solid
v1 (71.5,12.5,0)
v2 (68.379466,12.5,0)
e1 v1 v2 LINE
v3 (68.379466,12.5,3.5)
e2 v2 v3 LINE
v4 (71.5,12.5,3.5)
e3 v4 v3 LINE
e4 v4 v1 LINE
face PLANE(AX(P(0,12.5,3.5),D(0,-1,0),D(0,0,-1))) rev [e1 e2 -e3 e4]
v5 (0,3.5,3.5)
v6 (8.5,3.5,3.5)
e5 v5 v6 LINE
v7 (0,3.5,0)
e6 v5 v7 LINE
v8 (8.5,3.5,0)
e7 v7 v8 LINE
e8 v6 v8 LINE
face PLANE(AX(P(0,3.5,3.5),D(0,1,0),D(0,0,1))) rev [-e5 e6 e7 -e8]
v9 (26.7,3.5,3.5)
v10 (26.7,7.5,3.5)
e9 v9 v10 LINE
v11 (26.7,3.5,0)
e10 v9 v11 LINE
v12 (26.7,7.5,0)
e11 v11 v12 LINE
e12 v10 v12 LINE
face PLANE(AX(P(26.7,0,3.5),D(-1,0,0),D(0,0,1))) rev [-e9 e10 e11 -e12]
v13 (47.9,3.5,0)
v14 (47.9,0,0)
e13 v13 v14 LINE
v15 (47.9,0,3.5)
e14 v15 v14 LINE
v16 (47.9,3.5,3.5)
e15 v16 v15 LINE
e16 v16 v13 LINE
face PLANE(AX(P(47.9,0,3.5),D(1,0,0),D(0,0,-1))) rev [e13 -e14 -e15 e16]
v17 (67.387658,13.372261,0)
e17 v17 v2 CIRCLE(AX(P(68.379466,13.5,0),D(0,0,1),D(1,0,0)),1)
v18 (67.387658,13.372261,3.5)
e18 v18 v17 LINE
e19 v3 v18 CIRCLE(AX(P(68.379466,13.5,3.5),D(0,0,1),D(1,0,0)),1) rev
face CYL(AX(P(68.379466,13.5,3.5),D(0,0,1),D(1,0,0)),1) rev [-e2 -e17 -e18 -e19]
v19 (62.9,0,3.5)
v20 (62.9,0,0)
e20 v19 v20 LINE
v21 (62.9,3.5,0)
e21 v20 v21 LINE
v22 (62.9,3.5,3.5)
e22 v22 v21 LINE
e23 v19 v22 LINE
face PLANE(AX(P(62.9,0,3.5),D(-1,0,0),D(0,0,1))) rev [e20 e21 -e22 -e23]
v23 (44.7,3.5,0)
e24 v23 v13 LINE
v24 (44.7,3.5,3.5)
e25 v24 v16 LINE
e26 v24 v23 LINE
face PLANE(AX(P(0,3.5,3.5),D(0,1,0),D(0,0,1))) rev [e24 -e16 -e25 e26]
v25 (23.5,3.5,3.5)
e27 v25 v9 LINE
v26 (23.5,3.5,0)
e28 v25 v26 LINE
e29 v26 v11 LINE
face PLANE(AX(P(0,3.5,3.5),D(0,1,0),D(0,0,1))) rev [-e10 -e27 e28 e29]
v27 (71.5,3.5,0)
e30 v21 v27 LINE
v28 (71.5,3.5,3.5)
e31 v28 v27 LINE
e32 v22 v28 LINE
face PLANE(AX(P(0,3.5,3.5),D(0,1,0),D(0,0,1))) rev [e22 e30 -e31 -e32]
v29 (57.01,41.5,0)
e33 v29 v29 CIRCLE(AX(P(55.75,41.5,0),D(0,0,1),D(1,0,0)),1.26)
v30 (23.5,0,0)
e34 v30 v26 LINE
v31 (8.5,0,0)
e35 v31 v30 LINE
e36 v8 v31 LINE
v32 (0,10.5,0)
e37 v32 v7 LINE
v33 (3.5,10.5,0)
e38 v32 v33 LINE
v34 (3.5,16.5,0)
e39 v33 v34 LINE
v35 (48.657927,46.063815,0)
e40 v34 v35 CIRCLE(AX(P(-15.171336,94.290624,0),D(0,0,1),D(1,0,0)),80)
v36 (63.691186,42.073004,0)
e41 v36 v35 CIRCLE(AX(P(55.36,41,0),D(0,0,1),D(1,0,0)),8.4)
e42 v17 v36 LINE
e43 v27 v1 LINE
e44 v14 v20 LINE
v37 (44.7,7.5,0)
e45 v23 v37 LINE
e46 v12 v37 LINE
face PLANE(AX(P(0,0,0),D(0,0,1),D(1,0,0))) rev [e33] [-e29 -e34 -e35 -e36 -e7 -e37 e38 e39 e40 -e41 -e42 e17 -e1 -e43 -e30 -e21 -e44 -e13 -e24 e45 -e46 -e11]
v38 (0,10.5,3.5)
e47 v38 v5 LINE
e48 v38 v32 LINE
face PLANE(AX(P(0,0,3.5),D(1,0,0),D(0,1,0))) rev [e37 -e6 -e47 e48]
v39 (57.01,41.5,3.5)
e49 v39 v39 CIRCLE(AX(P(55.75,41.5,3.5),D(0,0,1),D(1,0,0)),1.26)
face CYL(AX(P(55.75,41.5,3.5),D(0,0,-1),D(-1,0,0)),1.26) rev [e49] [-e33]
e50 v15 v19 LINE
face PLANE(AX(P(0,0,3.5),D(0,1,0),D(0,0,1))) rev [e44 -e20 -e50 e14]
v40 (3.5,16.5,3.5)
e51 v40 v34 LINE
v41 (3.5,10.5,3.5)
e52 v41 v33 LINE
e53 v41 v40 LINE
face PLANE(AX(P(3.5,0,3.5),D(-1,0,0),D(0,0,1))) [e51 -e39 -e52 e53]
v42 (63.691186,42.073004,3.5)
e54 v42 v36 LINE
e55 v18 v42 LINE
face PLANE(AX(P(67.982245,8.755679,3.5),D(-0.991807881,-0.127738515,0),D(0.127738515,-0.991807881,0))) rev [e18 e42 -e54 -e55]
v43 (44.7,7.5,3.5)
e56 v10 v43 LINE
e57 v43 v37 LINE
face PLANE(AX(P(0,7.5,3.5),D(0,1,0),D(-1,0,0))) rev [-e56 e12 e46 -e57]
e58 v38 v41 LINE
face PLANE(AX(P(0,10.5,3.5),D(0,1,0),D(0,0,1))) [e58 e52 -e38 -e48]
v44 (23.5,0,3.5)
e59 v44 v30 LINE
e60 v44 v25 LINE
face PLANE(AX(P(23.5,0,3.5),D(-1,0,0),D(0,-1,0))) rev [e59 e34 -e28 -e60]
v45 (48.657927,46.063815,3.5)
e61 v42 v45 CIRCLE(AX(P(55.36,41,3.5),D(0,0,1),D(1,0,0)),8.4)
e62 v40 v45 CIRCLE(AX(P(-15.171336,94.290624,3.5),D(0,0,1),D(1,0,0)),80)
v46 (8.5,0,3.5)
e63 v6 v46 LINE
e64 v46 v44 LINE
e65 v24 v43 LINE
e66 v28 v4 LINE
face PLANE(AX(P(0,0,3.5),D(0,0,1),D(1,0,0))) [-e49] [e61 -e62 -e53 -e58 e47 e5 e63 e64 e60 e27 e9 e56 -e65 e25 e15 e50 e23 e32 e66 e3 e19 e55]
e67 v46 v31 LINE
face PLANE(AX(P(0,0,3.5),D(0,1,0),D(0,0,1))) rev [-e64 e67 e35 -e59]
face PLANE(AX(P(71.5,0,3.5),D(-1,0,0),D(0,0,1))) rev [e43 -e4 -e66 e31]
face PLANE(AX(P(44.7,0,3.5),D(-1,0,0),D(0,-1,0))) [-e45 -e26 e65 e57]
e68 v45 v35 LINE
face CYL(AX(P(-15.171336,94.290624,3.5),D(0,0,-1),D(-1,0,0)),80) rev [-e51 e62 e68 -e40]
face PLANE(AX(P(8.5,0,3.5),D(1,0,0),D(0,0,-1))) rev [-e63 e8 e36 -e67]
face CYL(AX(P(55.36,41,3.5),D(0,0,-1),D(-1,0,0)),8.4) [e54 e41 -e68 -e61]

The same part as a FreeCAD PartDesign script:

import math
import FreeCAD as App
import Part
import Sketcher
Q = App.Units.Quantity


def edges_at(feature, points):
    """Names of the edges that pass closest to the given points."""
    edges = feature.Shape.Edges
    near = lambda p: min(range(len(edges)), key=lambda i: edges[i].distToShape(Part.Vertex(*p))[0])
    return sorted({f"Edge{near(p) + 1}" for p in points})

doc = App.newDocument("Part")
params = doc.addObject("Spreadsheet::Sheet", "Params")
for row, (alias, value) in enumerate([
    ("sketch1_radius", "80 mm"),
    ("sketch1_radius2", "8.4 mm"),
    ("sketch1_diameter", "2.52 mm"),
    ("sketch1_width", "15 mm"),
    ("sketch1_width2", "18 mm"),
    ("pad1_length", "3.5 mm"),
    ("fillet_radius", "1 mm"),
], start=1):
    params.set(f"A{row}", alias)
    params.set(f"B{row}", "=" + value)
    params.setAlias(f"B{row}", alias)

body = doc.addObject("PartDesign::Body", "Body")

# Sketch on XY plane
sketch1 = body.newObject("Sketcher::SketchObject", "Sketch")
sketch1.AttachmentSupport = (doc.getObject("XY_Plane"), [""])
sketch1.MapMode = "FlatFace"
sketch1.addGeometry([
    Part.LineSegment(App.Vector(3.5, 10.5, 0), App.Vector(0, 10.5, 0)),  # 0
    Part.LineSegment(App.Vector(0, 10.5, 0), App.Vector(0, 3.5, 0)),  # 1
    Part.LineSegment(App.Vector(0, 3.5, 0), App.Vector(8.5, 3.5, 0)),  # 2
    Part.LineSegment(App.Vector(8.5, 3.5, 0), App.Vector(8.5, 0, 0)),  # 3
    Part.LineSegment(App.Vector(8.5, 0, 0), App.Vector(23.5, 0, 0)),  # 4
    Part.LineSegment(App.Vector(23.5, 0, 0), App.Vector(23.5, 3.5, 0)),  # 5
    Part.LineSegment(App.Vector(23.5, 3.5, 0), App.Vector(26.7, 3.5, 0)),  # 6
    Part.LineSegment(App.Vector(26.7, 3.5, 0), App.Vector(26.7, 7.5, 0)),  # 7
    Part.LineSegment(App.Vector(26.7, 7.5, 0), App.Vector(44.7, 7.5, 0)),  # 8
    Part.LineSegment(App.Vector(44.7, 7.5, 0), App.Vector(44.7, 3.5, 0)),  # 9
    Part.LineSegment(App.Vector(44.7, 3.5, 0), App.Vector(47.9, 3.5, 0)),  # 10
    Part.LineSegment(App.Vector(47.9, 3.5, 0), App.Vector(47.9, 0, 0)),  # 11
    Part.LineSegment(App.Vector(47.9, 0, 0), App.Vector(62.9, 0, 0)),  # 12
    Part.LineSegment(App.Vector(62.9, 0, 0), App.Vector(62.9, 3.5, 0)),  # 13
    Part.LineSegment(App.Vector(62.9, 3.5, 0), App.Vector(71.5, 3.5, 0)),  # 14
    Part.LineSegment(App.Vector(71.5, 3.5, 0), App.Vector(71.5, 12.5, 0)),  # 15
    Part.LineSegment(App.Vector(71.5, 12.5, 0), App.Vector(67.5, 12.5, 0)),  # 16
    Part.LineSegment(App.Vector(67.5, 12.5, 0), App.Vector(63.691186, 42.073004, 0)),  # 17
    Part.ArcOfCircle(Part.Circle(App.Vector(55.36, 41, 0), App.Vector(0, 0, 1), 8.4), math.radians(7.338929), math.radians(142.926781)),  # 18
    Part.ArcOfCircle(Part.Circle(App.Vector(-15.171336, 94.290624, 0), App.Vector(0, 0, 1), 80), math.radians(-50.513848), math.radians(-37.073219)),  # 19
    Part.ArcOfCircle(Part.Circle(App.Vector(-15.171336, 94.290624, 0), App.Vector(0, 0, 1), 80), math.radians(-76.503162), math.radians(-50.513848)),  # 20
    Part.LineSegment(App.Vector(3.5, 16.5, 0), App.Vector(3.5, 10.5, 0)),  # 21
    Part.Circle(App.Vector(55.75, 41.5, 0), App.Vector(0, 0, 1), 1.26),  # 22
], False)
sketch1.addConstraint([
    Sketcher.Constraint("Coincident", 0, 2, 1, 1),
    Sketcher.Constraint("Coincident", 1, 2, 2, 1),
    Sketcher.Constraint("Coincident", 2, 2, 3, 1),
    Sketcher.Constraint("Coincident", 3, 2, 4, 1),
    Sketcher.Constraint("Coincident", 4, 2, 5, 1),
    Sketcher.Constraint("Coincident", 5, 2, 6, 1),
    Sketcher.Constraint("Coincident", 6, 2, 7, 1),
    Sketcher.Constraint("Coincident", 7, 2, 8, 1),
    Sketcher.Constraint("Coincident", 8, 2, 9, 1),
    Sketcher.Constraint("Coincident", 9, 2, 10, 1),
    Sketcher.Constraint("Coincident", 10, 2, 11, 1),
    Sketcher.Constraint("Coincident", 11, 2, 12, 1),
    Sketcher.Constraint("Coincident", 12, 2, 13, 1),
    Sketcher.Constraint("Coincident", 13, 2, 14, 1),
    Sketcher.Constraint("Coincident", 14, 2, 15, 1),
    Sketcher.Constraint("Coincident", 15, 2, 16, 1),
    Sketcher.Constraint("Coincident", 16, 2, 17, 1),
    Sketcher.Constraint("Tangent", 17, 2, 18, 1),
    Sketcher.Constraint("Tangent", 18, 2, 19, 2),
    Sketcher.Constraint("Tangent", 19, 1, 20, 2),
    Sketcher.Constraint("Coincident", 20, 1, 21, 1),
    Sketcher.Constraint("Coincident", 21, 2, 0, 1),
    Sketcher.Constraint("Horizontal", 0),
    Sketcher.Constraint("Vertical", 1),
    Sketcher.Constraint("Horizontal", 2),
    Sketcher.Constraint("Vertical", 3),
    Sketcher.Constraint("Horizontal", 4),
    Sketcher.Constraint("Vertical", 5),
    Sketcher.Constraint("Horizontal", 6),
    Sketcher.Constraint("Vertical", 7),
    Sketcher.Constraint("Horizontal", 8),
    Sketcher.Constraint("Vertical", 9),
    Sketcher.Constraint("Horizontal", 10),
    Sketcher.Constraint("Vertical", 11),
    Sketcher.Constraint("Horizontal", 12),
    Sketcher.Constraint("Vertical", 13),
    Sketcher.Constraint("Horizontal", 14),
    Sketcher.Constraint("Vertical", 15),
    Sketcher.Constraint("Horizontal", 16),
    Sketcher.Constraint("Vertical", 21),
    Sketcher.Constraint("Equal", 19, 20),
    Sketcher.Constraint("PointOnObject", 0, 2, -2),
    Sketcher.Constraint("PointOnObject", 3, 2, -1),
    Sketcher.Constraint("PointOnObject", 11, 2, -1),
    Sketcher.Constraint("Horizontal", 2, 2, 5, 2),
    Sketcher.Constraint("Horizontal", 6, 2, 9, 2),
    Sketcher.Constraint("Horizontal", 10, 2, 13, 2),
    Sketcher.Constraint("Equal", 6, 10),
    Sketcher.Constraint("Equal", 4, 12),
    Sketcher.Constraint("Equal", 0, 3),
    Sketcher.Constraint("Equal", 16, 7),
    Sketcher.Constraint("Radius", 19, Q("80 mm")),
    Sketcher.Constraint("Radius", 18, Q("8.4 mm")),
    Sketcher.Constraint("Diameter", 22, Q("2.52 mm")),
    Sketcher.Constraint("DistanceX", 4, 1, 4, 2, Q("15 mm")),
    Sketcher.Constraint("DistanceX", 8, 1, 8, 2, Q("18 mm")),
    Sketcher.Constraint("DistanceX", 16, 2, 16, 1, Q("4 mm")),
    Sketcher.Constraint("DistanceY", 1, 2, 1, 1, Q("7 mm")),
    Sketcher.Constraint("DistanceY", 15, 1, 15, 2, Q("9 mm")),
    Sketcher.Constraint("DistanceY", 21, 2, 21, 1, Q("6 mm")),
    Sketcher.Constraint("DistanceX", 0, 2, 0, 1, Q("3.5 mm")),
    Sketcher.Constraint("DistanceX", 2, 1, 2, 2, Q("8.5 mm")),
    Sketcher.Constraint("DistanceX", 6, 1, 6, 2, Q("3.2 mm")),
    Sketcher.Constraint("DistanceX", 14, 1, 14, 2, Q("8.6 mm")),
    Sketcher.Constraint("DistanceY", -1, 1, 18, 3, Q("41 mm")),
    Sketcher.Constraint("DistanceY", 0, 2, 22, 3, Q("31 mm")),
    Sketcher.Constraint("DistanceX", 19, 1, 8, 2, Q("9 mm")),
    Sketcher.Constraint("DistanceX", -1, 1, 18, 3, Q("55.36 mm")),
    Sketcher.Constraint("DistanceX", -1, 1, 22, 3, Q("55.75 mm")),
])
sketch1.setExpression("Constraints[51]", "Params.sketch1_radius")
sketch1.setExpression("Constraints[52]", "Params.sketch1_radius2")
sketch1.setExpression("Constraints[53]", "Params.sketch1_diameter")
sketch1.setExpression("Constraints[54]", "Params.sketch1_width")
sketch1.setExpression("Constraints[55]", "Params.sketch1_width2")
pad1 = body.newObject("PartDesign::Pad", "Pad")
pad1.Profile = sketch1
pad1.setExpression("Length", "Params.pad1_length")
doc.recompute()

fillet = body.newObject("PartDesign::Fillet", "Fillet")
fillet.Base = (pad1, edges_at(pad1, [(67.5, 12.5, 1.75)]))
fillet.setExpression("Radius", "Params.fillet_radius")

doc.recompute()
